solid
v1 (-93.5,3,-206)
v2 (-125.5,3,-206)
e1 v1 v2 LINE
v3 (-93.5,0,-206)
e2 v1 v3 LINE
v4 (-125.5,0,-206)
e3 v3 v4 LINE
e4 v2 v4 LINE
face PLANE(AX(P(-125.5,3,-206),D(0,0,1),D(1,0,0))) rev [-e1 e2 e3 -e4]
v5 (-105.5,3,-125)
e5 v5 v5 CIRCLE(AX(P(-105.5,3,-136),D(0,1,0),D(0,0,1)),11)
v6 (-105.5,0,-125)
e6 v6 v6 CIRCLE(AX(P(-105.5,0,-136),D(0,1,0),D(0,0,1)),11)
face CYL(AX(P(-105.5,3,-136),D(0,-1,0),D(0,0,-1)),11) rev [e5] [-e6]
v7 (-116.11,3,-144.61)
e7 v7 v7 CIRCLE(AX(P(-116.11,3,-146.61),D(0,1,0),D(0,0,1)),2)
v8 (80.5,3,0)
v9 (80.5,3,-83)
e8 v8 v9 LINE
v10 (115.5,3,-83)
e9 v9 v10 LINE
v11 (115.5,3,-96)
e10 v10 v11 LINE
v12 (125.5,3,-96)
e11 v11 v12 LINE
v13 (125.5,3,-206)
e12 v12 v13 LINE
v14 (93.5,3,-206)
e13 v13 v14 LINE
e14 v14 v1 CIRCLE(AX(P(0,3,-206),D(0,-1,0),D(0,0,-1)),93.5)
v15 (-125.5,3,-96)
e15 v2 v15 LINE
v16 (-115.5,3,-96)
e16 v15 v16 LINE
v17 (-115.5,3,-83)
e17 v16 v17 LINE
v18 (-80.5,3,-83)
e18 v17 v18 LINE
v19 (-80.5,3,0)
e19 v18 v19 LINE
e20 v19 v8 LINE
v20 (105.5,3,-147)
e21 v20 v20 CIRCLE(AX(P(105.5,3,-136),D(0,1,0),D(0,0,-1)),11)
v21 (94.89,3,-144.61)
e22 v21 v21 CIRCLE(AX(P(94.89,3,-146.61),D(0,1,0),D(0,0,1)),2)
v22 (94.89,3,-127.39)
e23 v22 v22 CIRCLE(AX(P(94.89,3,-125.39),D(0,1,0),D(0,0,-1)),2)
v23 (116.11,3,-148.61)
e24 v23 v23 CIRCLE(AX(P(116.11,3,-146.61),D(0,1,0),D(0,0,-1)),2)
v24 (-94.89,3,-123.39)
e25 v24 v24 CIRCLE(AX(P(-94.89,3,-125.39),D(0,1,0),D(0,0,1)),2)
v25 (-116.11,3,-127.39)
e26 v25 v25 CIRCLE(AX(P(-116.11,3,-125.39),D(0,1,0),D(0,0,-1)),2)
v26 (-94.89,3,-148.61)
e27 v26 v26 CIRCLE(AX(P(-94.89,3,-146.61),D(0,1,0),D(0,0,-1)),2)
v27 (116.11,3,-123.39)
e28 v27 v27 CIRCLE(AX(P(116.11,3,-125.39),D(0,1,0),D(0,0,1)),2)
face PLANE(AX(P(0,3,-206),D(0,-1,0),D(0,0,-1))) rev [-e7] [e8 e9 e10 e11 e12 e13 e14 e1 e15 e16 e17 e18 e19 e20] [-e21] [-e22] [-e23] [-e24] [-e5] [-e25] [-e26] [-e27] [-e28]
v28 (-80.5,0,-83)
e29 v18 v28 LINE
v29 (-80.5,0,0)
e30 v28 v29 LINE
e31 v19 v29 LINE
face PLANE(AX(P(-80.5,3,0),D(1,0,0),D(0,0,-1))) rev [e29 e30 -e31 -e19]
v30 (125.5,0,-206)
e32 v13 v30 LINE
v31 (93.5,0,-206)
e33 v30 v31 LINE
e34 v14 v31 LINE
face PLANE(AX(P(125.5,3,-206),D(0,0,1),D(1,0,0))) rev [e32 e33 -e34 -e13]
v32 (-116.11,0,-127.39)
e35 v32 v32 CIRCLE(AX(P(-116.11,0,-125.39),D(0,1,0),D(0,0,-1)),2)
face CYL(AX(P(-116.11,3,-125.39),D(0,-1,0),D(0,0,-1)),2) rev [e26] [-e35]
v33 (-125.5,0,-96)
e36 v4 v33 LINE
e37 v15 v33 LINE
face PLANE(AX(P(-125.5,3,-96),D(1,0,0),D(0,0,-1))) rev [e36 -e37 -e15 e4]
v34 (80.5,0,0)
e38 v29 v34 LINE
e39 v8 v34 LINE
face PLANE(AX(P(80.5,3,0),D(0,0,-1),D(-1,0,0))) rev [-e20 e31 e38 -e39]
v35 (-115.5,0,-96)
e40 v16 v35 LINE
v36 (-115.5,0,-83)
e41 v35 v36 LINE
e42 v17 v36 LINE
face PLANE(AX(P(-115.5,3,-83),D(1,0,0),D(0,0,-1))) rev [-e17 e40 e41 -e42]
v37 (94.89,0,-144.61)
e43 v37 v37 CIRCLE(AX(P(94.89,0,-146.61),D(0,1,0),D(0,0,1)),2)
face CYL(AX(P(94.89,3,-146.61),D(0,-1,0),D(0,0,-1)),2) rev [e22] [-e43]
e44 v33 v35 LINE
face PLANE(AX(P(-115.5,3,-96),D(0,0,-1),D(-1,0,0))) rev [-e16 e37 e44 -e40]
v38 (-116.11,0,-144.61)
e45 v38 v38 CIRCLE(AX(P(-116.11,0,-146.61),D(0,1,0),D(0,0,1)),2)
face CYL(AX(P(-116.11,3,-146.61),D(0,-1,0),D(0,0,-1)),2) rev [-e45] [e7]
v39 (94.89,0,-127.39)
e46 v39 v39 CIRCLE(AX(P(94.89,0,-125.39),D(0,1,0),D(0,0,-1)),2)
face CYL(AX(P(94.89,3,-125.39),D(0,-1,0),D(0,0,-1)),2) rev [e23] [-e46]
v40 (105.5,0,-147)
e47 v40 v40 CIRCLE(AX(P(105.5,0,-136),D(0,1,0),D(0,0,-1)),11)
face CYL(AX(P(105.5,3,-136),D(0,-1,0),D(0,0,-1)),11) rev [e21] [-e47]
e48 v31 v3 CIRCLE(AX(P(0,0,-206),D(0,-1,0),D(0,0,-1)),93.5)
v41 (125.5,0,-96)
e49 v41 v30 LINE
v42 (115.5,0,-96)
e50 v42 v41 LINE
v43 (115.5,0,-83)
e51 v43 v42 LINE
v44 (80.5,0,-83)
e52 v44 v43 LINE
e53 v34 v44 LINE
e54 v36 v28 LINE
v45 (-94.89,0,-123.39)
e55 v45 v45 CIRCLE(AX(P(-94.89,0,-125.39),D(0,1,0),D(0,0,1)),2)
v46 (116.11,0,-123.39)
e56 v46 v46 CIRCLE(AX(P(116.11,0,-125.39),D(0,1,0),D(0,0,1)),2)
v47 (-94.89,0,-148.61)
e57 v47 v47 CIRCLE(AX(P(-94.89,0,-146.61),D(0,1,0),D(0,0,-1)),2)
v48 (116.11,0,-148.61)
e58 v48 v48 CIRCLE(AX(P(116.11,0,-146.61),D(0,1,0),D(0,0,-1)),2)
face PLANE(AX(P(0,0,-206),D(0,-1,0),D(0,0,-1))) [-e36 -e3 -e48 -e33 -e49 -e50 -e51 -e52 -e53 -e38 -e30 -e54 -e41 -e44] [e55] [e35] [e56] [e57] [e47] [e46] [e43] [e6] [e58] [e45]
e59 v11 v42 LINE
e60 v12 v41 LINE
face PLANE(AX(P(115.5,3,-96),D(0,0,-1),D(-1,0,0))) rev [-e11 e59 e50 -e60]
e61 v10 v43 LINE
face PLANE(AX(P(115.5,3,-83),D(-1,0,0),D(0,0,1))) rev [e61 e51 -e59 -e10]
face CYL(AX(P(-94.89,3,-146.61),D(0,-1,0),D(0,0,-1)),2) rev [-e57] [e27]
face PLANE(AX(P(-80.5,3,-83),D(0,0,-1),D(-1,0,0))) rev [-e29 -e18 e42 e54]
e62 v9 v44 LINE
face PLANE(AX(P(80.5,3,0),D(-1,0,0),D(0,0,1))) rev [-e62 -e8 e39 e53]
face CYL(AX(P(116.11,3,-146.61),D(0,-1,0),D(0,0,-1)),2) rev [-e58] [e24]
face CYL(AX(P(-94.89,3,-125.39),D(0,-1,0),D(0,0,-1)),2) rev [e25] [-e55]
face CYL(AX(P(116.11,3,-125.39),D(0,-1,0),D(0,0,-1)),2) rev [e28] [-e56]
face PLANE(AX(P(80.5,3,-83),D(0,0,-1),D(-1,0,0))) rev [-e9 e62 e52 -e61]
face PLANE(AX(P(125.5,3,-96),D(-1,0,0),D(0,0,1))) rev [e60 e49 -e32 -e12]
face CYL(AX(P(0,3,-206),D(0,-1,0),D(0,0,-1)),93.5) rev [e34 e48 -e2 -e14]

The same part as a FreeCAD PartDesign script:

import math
import FreeCAD as App
import Part
import Sketcher
from FreeCAD import Vector
Q = App.Units.Quantity

doc = App.newDocument("Part")
params = doc.addObject("Spreadsheet::Sheet", "Params")
for row, (alias, value) in enumerate([
    ("sketch1_diameter", "4 mm"),
    ("sketch1_diameter2", "22 mm"),
    ("sketch1_radius", "93.5 mm"),
    ("sketch1_width", "161 mm"),
    ("sketch1_width2", "35 mm"),
    ("pad1_length", "3 mm"),
], start=1):
    params.set(f"A{row}", alias)
    params.set(f"B{row}", "=" + value)
    params.setAlias(f"B{row}", alias)

body = doc.addObject("PartDesign::Body", "Body")

# Sketch on XZ plane
sketch1 = body.newObject("Sketcher::SketchObject", "Sketch")
sketch1.AttachmentSupport = (doc.getObject("XZ_Plane"), [""])
sketch1.MapMode = "FlatFace"
sketch1.addGeometry(Part.LineSegment(Vector(-80.5, 0, 0), Vector(80.5, 0, 0)), False)
sketch1.addGeometry(Part.LineSegment(Vector(80.5, 0, 0), Vector(80.5, -83, 0)), False)
sketch1.addGeometry(Part.LineSegment(Vector(80.5, -83, 0), Vector(115.5, -83, 0)), False)
sketch1.addGeometry(Part.LineSegment(Vector(115.5, -83, 0), Vector(115.5, -96, 0)), False)
sketch1.addGeometry(Part.LineSegment(Vector(115.5, -96, 0), Vector(125.5, -96, 0)), False)
sketch1.addGeometry(Part.LineSegment(Vector(125.5, -96, 0), Vector(125.5, -206, 0)), False)
sketch1.addGeometry(Part.LineSegment(Vector(125.5, -206, 0), Vector(93.5, -206, 0)), False)
sketch1.addGeometry(Part.ArcOfCircle(Part.Circle(Vector(0, -206, 0), Vector(0, 0, 1), 93.5), math.radians(0), math.radians(180)), False)
sketch1.addGeometry(Part.LineSegment(Vector(-93.5, -206, 0), Vector(-125.5, -206, 0)), False)
sketch1.addGeometry(Part.LineSegment(Vector(-125.5, -206, 0), Vector(-125.5, -96, 0)), False)
sketch1.addGeometry(Part.LineSegment(Vector(-125.5, -96, 0), Vector(-115.5, -96, 0)), False)
sketch1.addGeometry(Part.LineSegment(Vector(-115.5, -96, 0), Vector(-115.5, -83, 0)), False)
sketch1.addGeometry(Part.LineSegment(Vector(-115.5, -83, 0), Vector(-80.5, -83, 0)), False)
sketch1.addGeometry(Part.LineSegment(Vector(-80.5, -83, 0), Vector(-80.5, 0, 0)), False)
sketch1.addGeometry(Part.Circle(Vector(116.11, -125.39, 0), Vector(0, 0, 1), 2), False)
sketch1.addGeometry(Part.Circle(Vector(94.89, -125.39, 0), Vector(0, 0, 1), 2), False)
sketch1.addGeometry(Part.Circle(Vector(105.5, -136, 0), Vector(0, 0, 1), 11), False)
sketch1.addGeometry(Part.Circle(Vector(-94.89, -125.39, 0), Vector(0, 0, 1), 2), False)
sketch1.addGeometry(Part.Circle(Vector(-116.11, -125.39, 0), Vector(0, 0, 1), 2), False)
sketch1.addGeometry(Part.Circle(Vector(-105.5, -136, 0), Vector(0, 0, 1), 11), False)
sketch1.addGeometry(Part.Circle(Vector(116.11, -146.61, 0), Vector(0, 0, 1), 2), False)
sketch1.addGeometry(Part.Circle(Vector(94.89, -146.61, 0), Vector(0, 0, 1), 2), False)
sketch1.addGeometry(Part.Circle(Vector(-94.89, -146.61, 0), Vector(0, 0, 1), 2), False)
sketch1.addGeometry(Part.Circle(Vector(-116.11, -146.61, 0), Vector(0, 0, 1), 2), False)
sketch1.addConstraint(Sketcher.Constraint("Coincident", 0, 2, 1, 1))
sketch1.addConstraint(Sketcher.Constraint("Coincident", 1, 2, 2, 1))
sketch1.addConstraint(Sketcher.Constraint("Coincident", 2, 2, 3, 1))
sketch1.addConstraint(Sketcher.Constraint("Coincident", 3, 2, 4, 1))
sketch1.addConstraint(Sketcher.Constraint("Coincident", 4, 2, 5, 1))
sketch1.addConstraint(Sketcher.Constraint("Coincident", 5, 2, 6, 1))
sketch1.addConstraint(Sketcher.Constraint("Coincident", 6, 2, 7, 1))
sketch1.addConstraint(Sketcher.Constraint("Coincident", 7, 2, 8, 1))
sketch1.addConstraint(Sketcher.Constraint("Coincident", 8, 2, 9, 1))
sketch1.addConstraint(Sketcher.Constraint("Coincident", 9, 2, 10, 1))
sketch1.addConstraint(Sketcher.Constraint("Coincident", 10, 2, 11, 1))
sketch1.addConstraint(Sketcher.Constraint("Coincident", 11, 2, 12, 1))
sketch1.addConstraint(Sketcher.Constraint("Coincident", 12, 2, 13, 1))
sketch1.addConstraint(Sketcher.Constraint("Coincident", 13, 2, 0, 1))
sketch1.addConstraint(Sketcher.Constraint("Horizontal", 0))
sketch1.addConstraint(Sketcher.Constraint("Vertical", 1))
sketch1.addConstraint(Sketcher.Constraint("Horizontal", 2))
sketch1.addConstraint(Sketcher.Constraint("Vertical", 3))
sketch1.addConstraint(Sketcher.Constraint("Horizontal", 4))
sketch1.addConstraint(Sketcher.Constraint("Vertical", 5))
sketch1.addConstraint(Sketcher.Constraint("Horizontal", 6))
sketch1.addConstraint(Sketcher.Constraint("Horizontal", 8))
sketch1.addConstraint(Sketcher.Constraint("Vertical", 9))
sketch1.addConstraint(Sketcher.Constraint("Horizontal", 10))
sketch1.addConstraint(Sketcher.Constraint("Vertical", 11))
sketch1.addConstraint(Sketcher.Constraint("Horizontal", 12))
sketch1.addConstraint(Sketcher.Constraint("Vertical", 13))
sketch1.addConstraint(Sketcher.Constraint("Equal", 14, 15))
sketch1.addConstraint(Sketcher.Constraint("Equal", 15, 17))
sketch1.addConstraint(Sketcher.Constraint("Equal", 17, 18))
sketch1.addConstraint(Sketcher.Constraint("Equal", 16, 19))
sketch1.addConstraint(Sketcher.Constraint("Equal", 18, 20))
sketch1.addConstraint(Sketcher.Constraint("Equal", 20, 21))
sketch1.addConstraint(Sketcher.Constraint("Equal", 21, 22))
sketch1.addConstraint(Sketcher.Constraint("Equal", 22, 23))
sketch1.addConstraint(Sketcher.Constraint("Symmetric", 0, 2, 13, 2, -1, 1))
sketch1.addConstraint(Sketcher.Constraint("Symmetric", 15, 3, 17, 3, -2))
sketch1.addConstraint(Sketcher.Constraint("Symmetric", 14, 3, 18, 3, -2))
sketch1.addConstraint(Sketcher.Constraint("Symmetric", 16, 3, 19, 3, -2))
sketch1.addConstraint(Sketcher.Constraint("Symmetric", 21, 3, 22, 3, -2))
sketch1.addConstraint(Sketcher.Constraint("Symmetric", 20, 3, 23, 3, -2))
sketch1.addConstraint(Sketcher.Constraint("Symmetric", 6, 2, 7, 2, -2))
sketch1.addConstraint(Sketcher.Constraint("Symmetric", 4, 2, 9, 2, -2))
sketch1.addConstraint(Sketcher.Constraint("Symmetric", 2, 2, 11, 2, -2))
sketch1.addConstraint(Sketcher.Constraint("Horizontal", 14, 3, 15, 3))
sketch1.addConstraint(Sketcher.Constraint("Horizontal", 20, 3, 21, 3))
sketch1.addConstraint(Sketcher.Constraint("Horizontal", 7, 3, 5, 2))
sketch1.addConstraint(Sketcher.Constraint("Vertical", 14, 3, 20, 3))
sketch1.addConstraint(Sketcher.Constraint("Vertical", 15, 3, 21, 3))
sketch1.addConstraint(Sketcher.Constraint("Diameter", 14, Q("4 mm")))
sketch1.addConstraint(Sketcher.Constraint("Diameter", 16, Q("22 mm")))
sketch1.addConstraint(Sketcher.Constraint("Radius", 7, Q("93.5 mm")))
sketch1.addConstraint(Sketcher.Constraint("DistanceX", 0, 1, 0, 2, Q("161 mm")))
sketch1.addConstraint(Sketcher.Constraint("DistanceX", 2, 1, 2, 2, Q("35 mm")))
sketch1.addConstraint(Sketcher.Constraint("DistanceX", 4, 1, 4, 2, Q("10 mm")))
sketch1.addConstraint(Sketcher.Constraint("DistanceY", 1, 2, 1, 1, Q("83 mm")))
sketch1.addConstraint(Sketcher.Constraint("DistanceY", 3, 2, 3, 1, Q("13 mm")))
sketch1.addConstraint(Sketcher.Constraint("DistanceY", 5, 2, 5, 1, Q("110 mm")))
sketch1.addConstraint(Sketcher.Constraint("DistanceY", 16, 3, -1, 1, Q("136 mm")))
sketch1.addConstraint(Sketcher.Constraint("DistanceX", 17, 3, 14, 3, Q("211 mm")))
sketch1.addConstraint(Sketcher.Constraint("DistanceX", 19, 3, 16, 3, Q("211 mm")))
sketch1.addConstraint(Sketcher.Constraint("DistanceX", -1, 1, 14, 3, Q("116.11 mm")))
sketch1.addConstraint(Sketcher.Constraint("DistanceY", 14, 3, -1, 1, Q("125.39 mm")))
sketch1.addConstraint(Sketcher.Constraint("DistanceY", 20, 3, -1, 1, Q("146.61 mm")))
sketch1.setExpression("Constraints[49]", "Params.sketch1_diameter")
sketch1.setExpression("Constraints[50]", "Params.sketch1_diameter2")
sketch1.setExpression("Constraints[51]", "Params.sketch1_radius")
sketch1.setExpression("Constraints[52]", "Params.sketch1_width")
sketch1.setExpression("Constraints[53]", "Params.sketch1_width2")
pad1 = body.newObject("PartDesign::Pad", "Pad")
pad1.Profile = sketch1
pad1.setExpression("Length", "Params.pad1_length")
pad1.Reversed = True

doc.recompute()
